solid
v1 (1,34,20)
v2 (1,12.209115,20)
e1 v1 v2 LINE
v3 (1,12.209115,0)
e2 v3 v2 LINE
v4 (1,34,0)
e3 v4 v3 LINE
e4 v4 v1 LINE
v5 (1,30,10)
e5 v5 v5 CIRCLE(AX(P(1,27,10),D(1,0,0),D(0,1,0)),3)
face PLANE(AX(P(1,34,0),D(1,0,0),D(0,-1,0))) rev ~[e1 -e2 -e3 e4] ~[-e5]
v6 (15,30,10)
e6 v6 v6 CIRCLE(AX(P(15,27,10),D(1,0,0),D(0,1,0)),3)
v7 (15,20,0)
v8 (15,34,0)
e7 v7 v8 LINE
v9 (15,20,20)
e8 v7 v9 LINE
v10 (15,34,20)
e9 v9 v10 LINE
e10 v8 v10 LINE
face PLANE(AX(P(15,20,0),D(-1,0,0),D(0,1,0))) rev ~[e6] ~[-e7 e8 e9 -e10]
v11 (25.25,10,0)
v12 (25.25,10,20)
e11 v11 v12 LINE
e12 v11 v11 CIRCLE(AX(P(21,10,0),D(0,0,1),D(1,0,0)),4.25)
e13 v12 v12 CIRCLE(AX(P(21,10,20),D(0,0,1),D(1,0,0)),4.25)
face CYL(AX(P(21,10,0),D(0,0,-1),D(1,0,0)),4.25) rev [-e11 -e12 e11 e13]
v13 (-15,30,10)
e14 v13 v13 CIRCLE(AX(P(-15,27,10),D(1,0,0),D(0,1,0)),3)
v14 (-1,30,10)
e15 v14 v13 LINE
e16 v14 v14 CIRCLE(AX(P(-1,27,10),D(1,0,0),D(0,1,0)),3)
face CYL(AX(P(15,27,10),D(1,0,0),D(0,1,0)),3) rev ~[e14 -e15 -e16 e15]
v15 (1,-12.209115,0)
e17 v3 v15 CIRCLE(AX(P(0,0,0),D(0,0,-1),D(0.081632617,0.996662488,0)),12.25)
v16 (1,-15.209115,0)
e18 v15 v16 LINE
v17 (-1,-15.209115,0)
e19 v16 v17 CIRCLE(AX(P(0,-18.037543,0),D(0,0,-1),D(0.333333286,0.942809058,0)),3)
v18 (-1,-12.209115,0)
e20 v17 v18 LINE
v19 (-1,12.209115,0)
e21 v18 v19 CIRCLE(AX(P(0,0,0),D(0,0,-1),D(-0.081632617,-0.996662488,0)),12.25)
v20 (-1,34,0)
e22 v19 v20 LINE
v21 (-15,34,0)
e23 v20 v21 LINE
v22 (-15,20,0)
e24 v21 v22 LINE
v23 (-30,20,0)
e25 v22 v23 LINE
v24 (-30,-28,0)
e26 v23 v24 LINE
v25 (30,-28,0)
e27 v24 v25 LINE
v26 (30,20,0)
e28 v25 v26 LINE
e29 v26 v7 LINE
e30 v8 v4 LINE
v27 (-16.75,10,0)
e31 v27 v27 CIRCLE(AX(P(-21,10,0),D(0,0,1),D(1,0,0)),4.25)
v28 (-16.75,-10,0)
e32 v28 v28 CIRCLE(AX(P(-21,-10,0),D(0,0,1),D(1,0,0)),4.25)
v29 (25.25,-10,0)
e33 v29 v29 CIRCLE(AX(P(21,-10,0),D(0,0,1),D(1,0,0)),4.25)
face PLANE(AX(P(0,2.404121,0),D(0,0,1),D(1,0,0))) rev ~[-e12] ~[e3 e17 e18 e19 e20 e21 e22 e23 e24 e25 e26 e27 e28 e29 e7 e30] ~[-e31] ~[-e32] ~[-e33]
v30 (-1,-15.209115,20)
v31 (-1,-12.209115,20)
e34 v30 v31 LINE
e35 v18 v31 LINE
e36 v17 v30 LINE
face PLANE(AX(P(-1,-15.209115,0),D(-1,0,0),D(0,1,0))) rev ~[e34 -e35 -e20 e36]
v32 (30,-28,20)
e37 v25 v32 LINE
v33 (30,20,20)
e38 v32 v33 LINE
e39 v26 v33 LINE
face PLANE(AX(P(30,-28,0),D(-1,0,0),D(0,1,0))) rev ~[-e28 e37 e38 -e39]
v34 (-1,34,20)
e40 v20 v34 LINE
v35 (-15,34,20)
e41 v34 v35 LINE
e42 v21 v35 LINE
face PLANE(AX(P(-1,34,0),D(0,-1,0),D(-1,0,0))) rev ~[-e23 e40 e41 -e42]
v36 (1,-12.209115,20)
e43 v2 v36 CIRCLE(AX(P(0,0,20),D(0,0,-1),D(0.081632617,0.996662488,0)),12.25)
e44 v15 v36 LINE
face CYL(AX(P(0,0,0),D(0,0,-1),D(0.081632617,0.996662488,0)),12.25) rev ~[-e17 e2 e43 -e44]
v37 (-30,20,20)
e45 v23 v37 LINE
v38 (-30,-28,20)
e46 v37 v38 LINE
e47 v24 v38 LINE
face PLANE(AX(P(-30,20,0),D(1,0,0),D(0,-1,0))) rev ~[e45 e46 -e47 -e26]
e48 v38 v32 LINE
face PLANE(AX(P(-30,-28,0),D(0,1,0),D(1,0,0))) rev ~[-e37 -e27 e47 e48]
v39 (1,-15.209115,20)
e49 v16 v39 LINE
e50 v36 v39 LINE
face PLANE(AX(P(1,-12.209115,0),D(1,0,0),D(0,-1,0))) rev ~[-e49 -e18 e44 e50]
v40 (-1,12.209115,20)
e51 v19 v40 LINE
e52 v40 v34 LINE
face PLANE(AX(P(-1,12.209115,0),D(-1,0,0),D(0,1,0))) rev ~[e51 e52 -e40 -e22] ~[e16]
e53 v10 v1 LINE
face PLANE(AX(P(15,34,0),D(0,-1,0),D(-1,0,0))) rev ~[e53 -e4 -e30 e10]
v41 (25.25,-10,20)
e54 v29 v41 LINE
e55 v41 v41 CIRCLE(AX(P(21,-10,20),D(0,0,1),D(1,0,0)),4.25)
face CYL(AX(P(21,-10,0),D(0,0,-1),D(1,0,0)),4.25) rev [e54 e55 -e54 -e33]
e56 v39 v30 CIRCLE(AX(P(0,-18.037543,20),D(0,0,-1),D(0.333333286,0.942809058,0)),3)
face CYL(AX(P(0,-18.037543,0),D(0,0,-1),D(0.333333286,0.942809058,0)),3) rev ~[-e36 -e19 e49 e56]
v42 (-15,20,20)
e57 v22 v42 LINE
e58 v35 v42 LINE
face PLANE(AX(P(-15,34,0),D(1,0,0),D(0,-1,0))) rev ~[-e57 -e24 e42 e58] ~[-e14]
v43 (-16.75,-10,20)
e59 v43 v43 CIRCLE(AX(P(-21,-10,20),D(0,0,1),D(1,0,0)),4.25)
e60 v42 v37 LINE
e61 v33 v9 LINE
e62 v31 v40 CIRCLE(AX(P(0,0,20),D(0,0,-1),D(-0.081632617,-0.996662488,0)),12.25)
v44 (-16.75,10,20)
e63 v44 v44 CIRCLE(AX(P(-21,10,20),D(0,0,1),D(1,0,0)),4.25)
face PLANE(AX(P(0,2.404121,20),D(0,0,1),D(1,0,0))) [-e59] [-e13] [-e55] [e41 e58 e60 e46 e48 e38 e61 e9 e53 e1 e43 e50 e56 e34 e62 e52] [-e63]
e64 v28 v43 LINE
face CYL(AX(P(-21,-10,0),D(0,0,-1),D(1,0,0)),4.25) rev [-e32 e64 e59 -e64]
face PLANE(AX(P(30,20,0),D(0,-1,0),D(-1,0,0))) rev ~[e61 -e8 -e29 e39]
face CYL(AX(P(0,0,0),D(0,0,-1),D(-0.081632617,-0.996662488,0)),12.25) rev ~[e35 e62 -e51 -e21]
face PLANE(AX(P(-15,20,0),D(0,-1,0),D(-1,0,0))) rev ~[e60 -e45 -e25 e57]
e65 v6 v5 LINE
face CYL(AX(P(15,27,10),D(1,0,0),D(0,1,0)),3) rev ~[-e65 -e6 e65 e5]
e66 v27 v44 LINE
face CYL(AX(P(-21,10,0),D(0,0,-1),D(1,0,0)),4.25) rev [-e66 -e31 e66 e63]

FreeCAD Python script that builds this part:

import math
import FreeCAD as App
import Part
import Sketcher

V = App.Vector

doc = App.newDocument("Part")
body = doc.addObject("PartDesign::Body", "Body")

# Sketch on XY plane
sketch1 = doc.addObject("Sketcher::SketchObject", "Sketch")
body.addObject(sketch1)
sketch1.AttachmentSupport = (doc.XY_Plane, [""])
sketch1.MapMode = "FlatFace"
sketch1.addGeometry([
    Part.LineSegment(V(-1, 34, 0), V(-15, 34, 0)),  # 0
    Part.LineSegment(V(-15, 34, 0), V(-15, 20, 0)),  # 1
    Part.LineSegment(V(-15, 20, 0), V(-30, 20, 0)),  # 2
    Part.LineSegment(V(-30, 20, 0), V(-30, -28, 0)),  # 3
    Part.LineSegment(V(-30, -28, 0), V(30, -28, 0)),  # 4
    Part.LineSegment(V(30, -28, 0), V(30, 20, 0)),  # 5
    Part.LineSegment(V(30, 20, 0), V(15, 20, 0)),  # 6
    Part.LineSegment(V(15, 20, 0), V(15, 34, 0)),  # 7
    Part.LineSegment(V(15, 34, 0), V(1, 34, 0)),  # 8
    Part.LineSegment(V(1, 34, 0), V(1, 12.209115, 0)),  # 9
    Part.ArcOfCircle(Part.Circle(V(0, 0, 0), V(0, 0, 1), 12.25), math.radians(-85.317585), math.radians(85.317585)),  # 10
    Part.LineSegment(V(1, -12.209115, 0), V(1, -15.209115, 0)),  # 11
    Part.ArcOfCircle(Part.Circle(V(0, -18.037543, 0), V(0, 0, 1), 3), math.radians(109.471218), math.radians(430.528782)),  # 12
    Part.LineSegment(V(-1, -15.209115, 0), V(-1, -12.209115, 0)),  # 13
    Part.ArcOfCircle(Part.Circle(V(0, 0, 0), V(0, 0, 1), 12.25), math.radians(94.682415), math.radians(265.317585)),  # 14
    Part.LineSegment(V(-1, 12.209115, 0), V(-1, 34, 0)),  # 15
    Part.Circle(V(-21, -10, 0), V(0, 0, 1), 4.25),  # 16
    Part.Circle(V(21, -10, 0), V(0, 0, 1), 4.25),  # 17
    Part.Circle(V(-21, 10, 0), V(0, 0, 1), 4.25),  # 18
    Part.Circle(V(21, 10, 0), V(0, 0, 1), 4.25),  # 19
], False)
sketch1.addConstraint([
    Sketcher.Constraint("Coincident", 0, 2, 1, 1),
    Sketcher.Constraint("Coincident", 1, 2, 2, 1),
    Sketcher.Constraint("Coincident", 2, 2, 3, 1),
    Sketcher.Constraint("Coincident", 3, 2, 4, 1),
    Sketcher.Constraint("Coincident", 4, 2, 5, 1),
    Sketcher.Constraint("Coincident", 5, 2, 6, 1),
    Sketcher.Constraint("Coincident", 6, 2, 7, 1),
    Sketcher.Constraint("Coincident", 7, 2, 8, 1),
    Sketcher.Constraint("Coincident", 8, 2, 9, 1),
    Sketcher.Constraint("Coincident", 9, 2, 10, 2),
    Sketcher.Constraint("Coincident", 10, 1, 11, 1),
    Sketcher.Constraint("Coincident", 11, 2, 12, 2),
    Sketcher.Constraint("Coincident", 12, 1, 13, 1),
    Sketcher.Constraint("Coincident", 13, 2, 14, 2),
    Sketcher.Constraint("Coincident", 14, 1, 15, 1),
    Sketcher.Constraint("Coincident", 15, 2, 0, 1),
    Sketcher.Constraint("Horizontal", 0),
    Sketcher.Constraint("Vertical", 1),
    Sketcher.Constraint("Horizontal", 2),
    Sketcher.Constraint("Vertical", 3),
    Sketcher.Constraint("Horizontal", 4),
    Sketcher.Constraint("Vertical", 5),
    Sketcher.Constraint("Horizontal", 6),
    Sketcher.Constraint("Vertical", 7),
    Sketcher.Constraint("Horizontal", 8),
    Sketcher.Constraint("Vertical", 9),
    Sketcher.Constraint("Vertical", 11),
    Sketcher.Constraint("Vertical", 13),
    Sketcher.Constraint("Vertical", 15),
    Sketcher.Constraint("Coincident", 10, 3, -1, 1),
    Sketcher.Constraint("Coincident", 14, 3, -1, 1),
    Sketcher.Constraint("Equal", 10, 14),
    Sketcher.Constraint("Equal", 16, 17),
    Sketcher.Constraint("Equal", 17, 18),
    Sketcher.Constraint("Equal", 18, 19),
    Sketcher.Constraint("Symmetric", 17, 3, 18, 3, -1, 1),
    Sketcher.Constraint("Symmetric", 16, 3, 19, 3, -1, 1),
    Sketcher.Constraint("Symmetric", 16, 3, 17, 3, -2),
    Sketcher.Constraint("Symmetric", 2, 2, 5, 2, -2),
    Sketcher.Constraint("Symmetric", 0, 2, 7, 2, -2),
    Sketcher.Constraint("Symmetric", 11, 2, 12, 1, -2),
    Sketcher.Constraint("Horizontal", 9, 2, 14, 1),
    Sketcher.Constraint("Vertical", 9, 2, 10, 1),
    Sketcher.Constraint("Equal", 8, 1),
    Sketcher.Constraint("Radius", 12, 3.0),
    Sketcher.Constraint("Diameter", 16, 8.5),
    Sketcher.Constraint("DistanceX", 0, 2, 0, 1, 14.0),
    Sketcher.Constraint("DistanceX", 2, 2, 2, 1, 15.0),
    Sketcher.Constraint("DistanceX", 4, 1, 4, 2, 60.0),
    Sketcher.Constraint("DistanceY", 3, 2, 3, 1, 48.0),
    Sketcher.Constraint("DistanceY", 11, 2, 11, 1, 3.0),
    Sketcher.Constraint("Radius", 10, 12.25),
    Sketcher.Constraint("DistanceX", 16, 3, -1, 1, 21.0),
    Sketcher.Constraint("DistanceY", 16, 3, -1, 1, 10.0),
    Sketcher.Constraint("DistanceY", -1, 1, 0, 2, 34.0),
])
pad1 = doc.addObject("PartDesign::Pad", "Pad")
body.addObject(pad1)
pad1.Profile = sketch1
pad1.Length = 20

# Sketch on YZ plane
sketch2 = doc.addObject("Sketcher::SketchObject", "Sketch001")
body.addObject(sketch2)
sketch2.AttachmentSupport = (doc.YZ_Plane, [""])
sketch2.MapMode = "FlatFace"
sketch2.AttachmentOffset = App.Placement(V(0, 0, 15), App.Rotation())
sketch2.addGeometry(Part.Circle(V(27, 10, 0), V(0, 0, 1), 3), False)
sketch2.addConstraint([
    Sketcher.Constraint("Diameter", 0, 6.0),
    Sketcher.Constraint("DistanceX", -1, 1, 0, 3, 27.0),
    Sketcher.Constraint("DistanceY", -1, 1, 0, 3, 10.0),
])
pocket1 = doc.addObject("PartDesign::Pocket", "Pocket")
body.addObject(pocket1)
pocket1.Profile = sketch2
pocket1.Length = 30

doc.recompute()
